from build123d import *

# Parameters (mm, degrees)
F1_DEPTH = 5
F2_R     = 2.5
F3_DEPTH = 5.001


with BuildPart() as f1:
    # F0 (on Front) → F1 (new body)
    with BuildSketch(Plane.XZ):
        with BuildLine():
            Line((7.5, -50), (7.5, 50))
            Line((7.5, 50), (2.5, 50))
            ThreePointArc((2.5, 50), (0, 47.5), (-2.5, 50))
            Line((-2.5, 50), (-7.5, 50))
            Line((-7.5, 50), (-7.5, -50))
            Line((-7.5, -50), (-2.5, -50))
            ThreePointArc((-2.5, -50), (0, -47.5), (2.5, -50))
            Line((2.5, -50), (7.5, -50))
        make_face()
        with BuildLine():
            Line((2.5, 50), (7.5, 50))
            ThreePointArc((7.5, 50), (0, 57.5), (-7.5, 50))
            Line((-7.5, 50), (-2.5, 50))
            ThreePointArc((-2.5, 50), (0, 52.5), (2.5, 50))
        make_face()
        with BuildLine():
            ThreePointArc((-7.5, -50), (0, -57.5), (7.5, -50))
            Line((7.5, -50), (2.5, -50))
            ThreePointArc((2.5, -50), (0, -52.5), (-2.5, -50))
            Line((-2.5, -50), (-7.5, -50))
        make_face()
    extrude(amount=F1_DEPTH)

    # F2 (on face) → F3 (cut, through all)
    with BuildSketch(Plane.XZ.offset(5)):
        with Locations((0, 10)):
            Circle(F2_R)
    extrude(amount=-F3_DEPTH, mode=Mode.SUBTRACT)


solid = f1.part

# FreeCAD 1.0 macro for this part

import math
import FreeCAD as App
import Part
import Sketcher

V = App.Vector

doc = App.newDocument("Part")
body = doc.addObject("PartDesign::Body", "Body")

# Sketch on XZ plane
sketch1 = body.newObject("Sketcher::SketchObject", "Sketch")
sketch1.AttachmentSupport = (doc.getObject("XZ_Plane"), [""])
sketch1.MapMode = "FlatFace"
sketch1.addGeometry(Part.LineSegment(V(7.5, -50, 0), V(7.5, 50, 0)), False)
sketch1.addGeometry(Part.ArcOfCircle(Part.Circle(V(0, 50, 0), V(0, 0, 1), 7.5), math.radians(0), math.radians(180)), False)
sketch1.addGeometry(Part.LineSegment(V(-7.5, 50, 0), V(-7.5, -50, 0)), False)
sketch1.addGeometry(Part.ArcOfCircle(Part.Circle(V(0, -50, 0), V(0, 0, 1), 7.5), math.radians(180), math.radians(360)), False)
sketch1.addGeometry(Part.Circle(V(0, -50, 0), V(0, 0, 1), 2.5), False)
sketch1.addGeometry(Part.Circle(V(0, 50, 0), V(0, 0, 1), 2.5), False)
sketch1.addConstraint(Sketcher.Constraint("Tangent", 0, 2, 1, 1))
sketch1.addConstraint(Sketcher.Constraint("Tangent", 1, 2, 2, 1))
sketch1.addConstraint(Sketcher.Constraint("Tangent", 2, 2, 3, 1))
sketch1.addConstraint(Sketcher.Constraint("Tangent", 3, 2, 0, 1))
sketch1.addConstraint(Sketcher.Constraint("Vertical", 0))
sketch1.addConstraint(Sketcher.Constraint("Vertical", 2))
sketch1.addConstraint(Sketcher.Constraint("Coincident", 4, 3, 3, 3))
sketch1.addConstraint(Sketcher.Constraint("Coincident", 5, 3, 1, 3))
sketch1.addConstraint(Sketcher.Constraint("Equal", 4, 5))
sketch1.addConstraint(Sketcher.Constraint("Symmetric", 1, 3, 3, 3, -1, 1))
sketch1.addConstraint(Sketcher.Constraint("Diameter", 4, 5.0))
sketch1.addConstraint(Sketcher.Constraint("Radius", 1, 7.5))
sketch1.addConstraint(Sketcher.Constraint("DistanceY", 0, 1, 0, 2, 100.0))
pad1 = body.newObject("PartDesign::Pad", "Pad")
pad1.Profile = sketch1
pad1.Length = 5

# Sketch on XZ plane
sketch2 = body.newObject("Sketcher::SketchObject", "Sketch001")
sketch2.AttachmentSupport = (doc.getObject("XZ_Plane"), [""])
sketch2.MapMode = "FlatFace"
sketch2.AttachmentOffset = App.Placement(V(0, 0, 5), App.Rotation())
sketch2.addGeometry(Part.Circle(V(0, 10, 0), V(0, 0, 1), 2.5), False)
sketch2.addConstraint(Sketcher.Constraint("PointOnObject", 0, 3, -2))
sketch2.addConstraint(Sketcher.Constraint("Diameter", 0, 5.0))
sketch2.addConstraint(Sketcher.Constraint("DistanceY", -1, 1, 0, 3, 10.0))
pocket1 = body.newObject("PartDesign::Pocket", "Pocket")
pocket1.Profile = sketch2
pocket1.Type = "ThroughAll"

doc.recompute()
